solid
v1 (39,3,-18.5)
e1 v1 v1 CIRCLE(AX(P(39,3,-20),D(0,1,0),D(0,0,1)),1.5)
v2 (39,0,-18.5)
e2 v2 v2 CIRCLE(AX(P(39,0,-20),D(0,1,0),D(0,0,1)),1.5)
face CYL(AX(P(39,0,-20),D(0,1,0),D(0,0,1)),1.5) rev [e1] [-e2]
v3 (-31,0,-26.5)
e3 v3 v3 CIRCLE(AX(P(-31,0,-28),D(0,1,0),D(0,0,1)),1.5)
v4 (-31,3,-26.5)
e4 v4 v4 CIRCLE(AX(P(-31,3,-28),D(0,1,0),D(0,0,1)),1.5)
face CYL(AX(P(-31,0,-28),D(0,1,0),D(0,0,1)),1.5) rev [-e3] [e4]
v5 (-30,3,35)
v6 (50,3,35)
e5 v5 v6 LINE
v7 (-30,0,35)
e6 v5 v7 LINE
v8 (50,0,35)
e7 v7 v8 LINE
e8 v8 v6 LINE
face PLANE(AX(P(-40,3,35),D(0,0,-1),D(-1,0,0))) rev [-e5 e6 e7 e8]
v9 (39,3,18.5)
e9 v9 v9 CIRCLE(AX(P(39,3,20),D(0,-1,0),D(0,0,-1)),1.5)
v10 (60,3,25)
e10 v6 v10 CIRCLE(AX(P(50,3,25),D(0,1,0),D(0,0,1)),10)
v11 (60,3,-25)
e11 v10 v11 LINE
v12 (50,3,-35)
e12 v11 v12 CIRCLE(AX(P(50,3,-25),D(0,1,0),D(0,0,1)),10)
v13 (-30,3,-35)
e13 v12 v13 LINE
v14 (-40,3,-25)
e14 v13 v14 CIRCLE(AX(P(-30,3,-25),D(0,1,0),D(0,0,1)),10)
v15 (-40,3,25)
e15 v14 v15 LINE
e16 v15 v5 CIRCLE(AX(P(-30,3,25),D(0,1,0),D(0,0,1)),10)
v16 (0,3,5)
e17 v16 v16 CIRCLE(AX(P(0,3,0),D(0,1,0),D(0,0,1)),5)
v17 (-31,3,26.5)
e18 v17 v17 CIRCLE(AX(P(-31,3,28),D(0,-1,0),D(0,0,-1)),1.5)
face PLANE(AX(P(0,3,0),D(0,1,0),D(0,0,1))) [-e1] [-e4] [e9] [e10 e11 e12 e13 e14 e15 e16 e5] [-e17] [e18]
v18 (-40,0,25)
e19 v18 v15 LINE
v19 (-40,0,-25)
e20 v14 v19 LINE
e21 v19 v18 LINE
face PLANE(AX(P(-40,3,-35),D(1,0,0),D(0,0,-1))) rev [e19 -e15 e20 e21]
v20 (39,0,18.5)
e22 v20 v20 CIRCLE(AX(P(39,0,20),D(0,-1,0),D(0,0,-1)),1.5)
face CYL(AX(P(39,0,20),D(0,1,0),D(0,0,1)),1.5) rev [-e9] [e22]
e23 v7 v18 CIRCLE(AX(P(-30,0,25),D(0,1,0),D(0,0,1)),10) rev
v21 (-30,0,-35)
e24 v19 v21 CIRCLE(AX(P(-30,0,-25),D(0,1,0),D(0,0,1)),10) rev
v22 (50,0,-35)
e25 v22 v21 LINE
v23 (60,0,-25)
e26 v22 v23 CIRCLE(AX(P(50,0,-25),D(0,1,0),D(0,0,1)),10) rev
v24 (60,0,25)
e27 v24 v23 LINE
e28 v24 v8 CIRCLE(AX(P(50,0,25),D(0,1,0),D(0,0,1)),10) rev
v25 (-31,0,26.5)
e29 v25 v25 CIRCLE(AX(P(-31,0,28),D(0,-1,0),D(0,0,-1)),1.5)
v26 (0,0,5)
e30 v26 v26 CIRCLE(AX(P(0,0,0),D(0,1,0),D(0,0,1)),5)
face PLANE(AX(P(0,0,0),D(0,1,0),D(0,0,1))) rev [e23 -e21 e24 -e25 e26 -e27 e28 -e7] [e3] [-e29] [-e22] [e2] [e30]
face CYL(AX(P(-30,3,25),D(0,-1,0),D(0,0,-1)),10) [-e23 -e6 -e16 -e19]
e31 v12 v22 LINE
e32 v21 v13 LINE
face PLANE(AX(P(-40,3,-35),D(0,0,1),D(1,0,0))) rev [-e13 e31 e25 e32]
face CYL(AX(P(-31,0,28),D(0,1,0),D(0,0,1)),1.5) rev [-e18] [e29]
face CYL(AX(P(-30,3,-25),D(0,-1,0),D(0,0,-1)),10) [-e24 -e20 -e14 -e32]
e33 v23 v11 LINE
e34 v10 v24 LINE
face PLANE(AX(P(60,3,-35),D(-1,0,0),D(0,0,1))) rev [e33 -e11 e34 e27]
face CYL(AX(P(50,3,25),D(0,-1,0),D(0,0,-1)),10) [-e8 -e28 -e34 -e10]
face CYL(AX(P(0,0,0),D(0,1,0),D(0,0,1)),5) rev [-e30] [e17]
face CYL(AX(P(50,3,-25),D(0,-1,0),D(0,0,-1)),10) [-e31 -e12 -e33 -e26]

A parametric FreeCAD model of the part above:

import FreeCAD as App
import Part
import Sketcher

V = App.Vector
Q = App.Units.Quantity


def edges_at(feature, points):
    """Names of the edges that pass closest to the given points."""
    edges = feature.Shape.Edges
    near = lambda p: min(range(len(edges)), key=lambda i: edges[i].distToShape(Part.Vertex(*p))[0])
    return sorted({f"Edge{near(p) + 1}" for p in points})


def add_polygon(sketch, points):
    """Adds a closed chain of lines whose ends are joined by coincident constraints."""
    first, n = sketch.GeometryCount, len(points)
    for a, b in zip(points, points[1:] + points[:1]):
        sketch.addGeometry(Part.LineSegment(App.Vector(*a, 0), App.Vector(*b, 0)), False)
    for i in range(n):
        sketch.addConstraint(Sketcher.Constraint("Coincident", first + i, 2, first + (i + 1) % n, 1))

doc = App.newDocument("Part")
params = doc.addObject("Spreadsheet::Sheet", "Params")
for row, (alias, value) in enumerate([
    ("sketch1_width", "100 mm"),
    ("sketch1_height", "70 mm"),
    ("pad1_length", "3 mm"),
    ("fillet_radius", "10 mm"),
    ("sketch2_diameter", "10 mm"),
    ("sketch3_diameter", "3 mm"),
], start=1):
    params.set(f"A{row}", alias)
    params.set(f"B{row}", "=" + value)
    params.setAlias(f"B{row}", alias)

body = doc.addObject("PartDesign::Body", "Body")

sketch1 = body.newObject("Sketcher::SketchObject", "Sketch")
sketch1.AttachmentSupport = (doc.getObject("XZ_Plane"), [""])
sketch1.MapMode = "FlatFace"
add_polygon(sketch1, [(-40, -35), (-40, 35), (60, 35), (60, -35)])
sketch1.addConstraint(Sketcher.Constraint("Vertical", 0))
sketch1.addConstraint(Sketcher.Constraint("Horizontal", 1))
sketch1.addConstraint(Sketcher.Constraint("Vertical", 2))
sketch1.addConstraint(Sketcher.Constraint("Horizontal", 3))
sketch1.addConstraint(Sketcher.Constraint("DistanceX", 1, 1, 1, 2, Q("100 mm")))
sketch1.addConstraint(Sketcher.Constraint("DistanceY", 0, 1, 0, 2, Q("70 mm")))
sketch1.addConstraint(Sketcher.Constraint("DistanceX", 0, 2, -1, 1, Q("40 mm")))
sketch1.addConstraint(Sketcher.Constraint("DistanceY", -1, 1, 0, 2, Q("35 mm")))
sketch1.setExpression("Constraints[8]", "Params.sketch1_width")
sketch1.setExpression("Constraints[9]", "Params.sketch1_height")
pad1 = body.newObject("PartDesign::Pad", "Pad")
pad1.Profile = sketch1
pad1.setExpression("Length", "Params.pad1_length")
pad1.Reversed = True
doc.recompute()

fillet = body.newObject("PartDesign::Fillet", "Fillet")
fillet.Base = (pad1, edges_at(pad1, [
    (-40, 1.5, -35),
    (60, 1.5, -35),
    (60, 1.5, 35),
    (-40, 1.5, 35),
]))
fillet.setExpression("Radius", "Params.fillet_radius")

sketch2 = body.newObject("Sketcher::SketchObject", "Sketch001")
sketch2.AttachmentSupport = (doc.getObject("XZ_Plane"), [""])
sketch2.MapMode = "FlatFace"
sketch2.AttachmentOffset = App.Placement(V(0, 0, -3), App.Rotation())
sketch2.addGeometry(Part.Circle(V(0, 0, 0), V(0, 0, 1), 5), False)
sketch2.addConstraint(Sketcher.Constraint("Coincident", 0, 3, -1, 1))
sketch2.addConstraint(Sketcher.Constraint("Diameter", 0, Q("10 mm")))
sketch2.setExpression("Constraints[1]", "Params.sketch2_diameter")
pocket1 = body.newObject("PartDesign::Pocket", "Pocket")
pocket1.Profile = sketch2
pocket1.Type = "ThroughAll"
pocket1.Reversed = True

sketch3 = body.newObject("Sketcher::SketchObject", "Sketch002")
sketch3.AttachmentSupport = (doc.getObject("XZ_Plane"), [""])
sketch3.MapMode = "FlatFace"
sketch3.AttachmentOffset = App.Placement(V(0, 0, -3), App.Rotation())
sketch3.addGeometry(Part.Circle(V(-31, -28, 0), V(0, 0, 1), 1.5), False)
sketch3.addGeometry(Part.Circle(V(39, -20, 0), V(0, 0, 1), 1.5), False)
sketch3.addConstraint(Sketcher.Constraint("Equal", 0, 1))
sketch3.addConstraint(Sketcher.Constraint("Diameter", 0, Q("3 mm")))
sketch3.addConstraint(Sketcher.Constraint("DistanceX", 0, 3, -1, 1, Q("31 mm")))
sketch3.addConstraint(Sketcher.Constraint("DistanceY", 0, 3, -1, 1, Q("28 mm")))
sketch3.addConstraint(Sketcher.Constraint("DistanceX", -1, 1, 1, 3, Q("39 mm")))
sketch3.addConstraint(Sketcher.Constraint("DistanceY", 1, 3, -1, 1, Q("20 mm")))
sketch3.setExpression("Constraints[1]", "Params.sketch3_diameter")
pocket2 = body.newObject("PartDesign::Pocket", "Pocket001")
pocket2.Profile = sketch3
pocket2.Type = "ThroughAll"
pocket2.Reversed = True
doc.recompute()

mirrored = body.newObject("PartDesign::Mirrored", "Mirrored")
mirrored.Originals = [pocket2]
mirrored.MirrorPlane = (doc.getObject("XY_Plane"), [""])
body.Tip = mirrored

doc.recompute()
